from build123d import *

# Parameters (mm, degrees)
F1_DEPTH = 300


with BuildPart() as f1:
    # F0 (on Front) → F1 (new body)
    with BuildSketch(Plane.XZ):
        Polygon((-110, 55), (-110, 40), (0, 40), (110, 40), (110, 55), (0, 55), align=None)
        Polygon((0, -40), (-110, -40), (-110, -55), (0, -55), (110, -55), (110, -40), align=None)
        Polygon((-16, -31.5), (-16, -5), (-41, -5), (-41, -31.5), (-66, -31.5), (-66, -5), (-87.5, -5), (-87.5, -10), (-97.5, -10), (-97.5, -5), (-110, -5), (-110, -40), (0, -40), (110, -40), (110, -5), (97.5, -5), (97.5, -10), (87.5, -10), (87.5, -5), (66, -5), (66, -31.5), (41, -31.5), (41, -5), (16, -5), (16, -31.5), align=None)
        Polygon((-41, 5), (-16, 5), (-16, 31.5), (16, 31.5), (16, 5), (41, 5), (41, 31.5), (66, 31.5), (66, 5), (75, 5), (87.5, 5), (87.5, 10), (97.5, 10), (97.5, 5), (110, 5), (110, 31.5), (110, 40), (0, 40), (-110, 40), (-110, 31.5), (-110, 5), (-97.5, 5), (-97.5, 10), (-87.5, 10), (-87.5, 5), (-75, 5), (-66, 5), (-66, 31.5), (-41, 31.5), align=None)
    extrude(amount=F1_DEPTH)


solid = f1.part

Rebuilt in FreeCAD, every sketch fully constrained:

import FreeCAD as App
import Part
import Sketcher

V = App.Vector

doc = App.newDocument("Part")
params = doc.addObject("Spreadsheet::Sheet", "Params")
for row, (alias, value) in enumerate([
    ("sketch1_width", "10 mm"),
    ("sketch1_width2", "25 mm"),
    ("sketch1_width3", "32 mm"),
    ("sketch1_width4", "220 mm"),
    ("sketch1_height", "50 mm"),
    ("pad1_length", "300 mm"),
], start=1):
    params.set(f"A{row}", alias)
    params.set(f"B{row}", "=" + value)
    params.setAlias(f"B{row}", alias)

body = doc.addObject("PartDesign::Body", "Body")
body.AllowCompound = True

# Sketch on XZ plane
sketch1 = body.newObject("Sketcher::SketchObject", "Sketch")
sketch1.AttachmentSupport = (doc.getObject("XZ_Plane"), [""])
sketch1.MapMode = "FlatFace"
sketch1.addGeometry(Part.LineSegment(V(-110, 55, 0), V(-110, 5, 0)), False)
sketch1.addGeometry(Part.LineSegment(V(-110, 5, 0), V(-98, 5, 0)), False)
sketch1.addGeometry(Part.LineSegment(V(-98, 5, 0), V(-98, 10, 0)), False)
sketch1.addGeometry(Part.LineSegment(V(-98, 10, 0), V(-88, 10, 0)), False)
sketch1.addGeometry(Part.LineSegment(V(-88, 10, 0), V(-88, 5, 0)), False)
sketch1.addGeometry(Part.LineSegment(V(-88, 5, 0), V(-66, 5, 0)), False)
sketch1.addGeometry(Part.LineSegment(V(-66, 5, 0), V(-66, 32, 0)), False)
sketch1.addGeometry(Part.LineSegment(V(-66, 32, 0), V(-41, 32, 0)), False)
sketch1.addGeometry(Part.LineSegment(V(-41, 32, 0), V(-41, 5, 0)), False)
sketch1.addGeometry(Part.LineSegment(V(-41, 5, 0), V(-16, 5, 0)), False)
sketch1.addGeometry(Part.LineSegment(V(-16, 5, 0), V(-16, 32, 0)), False)
sketch1.addGeometry(Part.LineSegment(V(-16, 32, 0), V(16, 32, 0)), False)
sketch1.addGeometry(Part.LineSegment(V(16, 32, 0), V(16, 5, 0)), False)
sketch1.addGeometry(Part.LineSegment(V(16, 5, 0), V(41, 5, 0)), False)
sketch1.addGeometry(Part.LineSegment(V(41, 5, 0), V(41, 32, 0)), False)
sketch1.addGeometry(Part.LineSegment(V(41, 32, 0), V(66, 32, 0)), False)
sketch1.addGeometry(Part.LineSegment(V(66, 32, 0), V(66, 5, 0)), False)
sketch1.addGeometry(Part.LineSegment(V(66, 5, 0), V(88, 5, 0)), False)
sketch1.addGeometry(Part.LineSegment(V(88, 5, 0), V(88, 10, 0)), False)
sketch1.addGeometry(Part.LineSegment(V(88, 10, 0), V(98, 10, 0)), False)
sketch1.addGeometry(Part.LineSegment(V(98, 10, 0), V(98, 5, 0)), False)
sketch1.addGeometry(Part.LineSegment(V(98, 5, 0), V(110, 5, 0)), False)
sketch1.addGeometry(Part.LineSegment(V(110, 5, 0), V(110, 55, 0)), False)
sketch1.addGeometry(Part.LineSegment(V(110, 55, 0), V(-110, 55, 0)), False)
sketch1.addGeometry(Part.LineSegment(V(-110, -55, 0), V(110, -55, 0)), False)
sketch1.addGeometry(Part.LineSegment(V(110, -55, 0), V(110, -5, 0)), False)
sketch1.addGeometry(Part.LineSegment(V(110, -5, 0), V(98, -5, 0)), False)
sketch1.addGeometry(Part.LineSegment(V(98, -5, 0), V(98, -10, 0)), False)
sketch1.addGeometry(Part.LineSegment(V(98, -10, 0), V(88, -10, 0)), False)
sketch1.addGeometry(Part.LineSegment(V(88, -10, 0), V(88, -5, 0)), False)
sketch1.addGeometry(Part.LineSegment(V(88, -5, 0), V(66, -5, 0)), False)
sketch1.addGeometry(Part.LineSegment(V(66, -5, 0), V(66, -32, 0)), False)
sketch1.addGeometry(Part.LineSegment(V(66, -32, 0), V(41, -32, 0)), False)
sketch1.addGeometry(Part.LineSegment(V(41, -32, 0), V(41, -5, 0)), False)
sketch1.addGeometry(Part.LineSegment(V(41, -5, 0), V(16, -5, 0)), False)
sketch1.addGeometry(Part.LineSegment(V(16, -5, 0), V(16, -32, 0)), False)
sketch1.addGeometry(Part.LineSegment(V(16, -32, 0), V(-16, -32, 0)), False)
sketch1.addGeometry(Part.LineSegment(V(-16, -32, 0), V(-16, -5, 0)), False)
sketch1.addGeometry(Part.LineSegment(V(-16, -5, 0), V(-41, -5, 0)), False)
sketch1.addGeometry(Part.LineSegment(V(-41, -5, 0), V(-41, -32, 0)), False)
sketch1.addGeometry(Part.LineSegment(V(-41, -32, 0), V(-66, -32, 0)), False)
sketch1.addGeometry(Part.LineSegment(V(-66, -32, 0), V(-66, -5, 0)), False)
sketch1.addGeometry(Part.LineSegment(V(-66, -5, 0), V(-88, -5, 0)), False)
sketch1.addGeometry(Part.LineSegment(V(-88, -5, 0), V(-88, -10, 0)), False)
sketch1.addGeometry(Part.LineSegment(V(-88, -10, 0), V(-98, -10, 0)), False)
sketch1.addGeometry(Part.LineSegment(V(-98, -10, 0), V(-98, -5, 0)), False)
sketch1.addGeometry(Part.LineSegment(V(-98, -5, 0), V(-110, -5, 0)), False)
sketch1.addGeometry(Part.LineSegment(V(-110, -5, 0), V(-110, -55, 0)), False)
sketch1.addConstraint(Sketcher.Constraint("Coincident", 0, 2, 1, 1))
sketch1.addConstraint(Sketcher.Constraint("Coincident", 1, 2, 2, 1))
sketch1.addConstraint(Sketcher.Constraint("Coincident", 2, 2, 3, 1))
sketch1.addConstraint(Sketcher.Constraint("Coincident", 3, 2, 4, 1))
sketch1.addConstraint(Sketcher.Constraint("Coincident", 4, 2, 5, 1))
sketch1.addConstraint(Sketcher.Constraint("Coincident", 5, 2, 6, 1))
sketch1.addConstraint(Sketcher.Constraint("Coincident", 6, 2, 7, 1))
sketch1.addConstraint(Sketcher.Constraint("Coincident", 7, 2, 8, 1))
sketch1.addConstraint(Sketcher.Constraint("Coincident", 8, 2, 9, 1))
sketch1.addConstraint(Sketcher.Constraint("Coincident", 9, 2, 10, 1))
sketch1.addConstraint(Sketcher.Constraint("Coincident", 10, 2, 11, 1))
sketch1.addConstraint(Sketcher.Constraint("Coincident", 11, 2, 12, 1))
sketch1.addConstraint(Sketcher.Constraint("Coincident", 12, 2, 13, 1))
sketch1.addConstraint(Sketcher.Constraint("Coincident", 13, 2, 14, 1))
sketch1.addConstraint(Sketcher.Constraint("Coincident", 14, 2, 15, 1))
sketch1.addConstraint(Sketcher.Constraint("Coincident", 15, 2, 16, 1))
sketch1.addConstraint(Sketcher.Constraint("Coincident", 16, 2, 17, 1))
sketch1.addConstraint(Sketcher.Constraint("Coincident", 17, 2, 18, 1))
sketch1.addConstraint(Sketcher.Constraint("Coincident", 18, 2, 19, 1))
sketch1.addConstraint(Sketcher.Constraint("Coincident", 19, 2, 20, 1))
sketch1.addConstraint(Sketcher.Constraint("Coincident", 20, 2, 21, 1))
sketch1.addConstraint(Sketcher.Constraint("Coincident", 21, 2, 22, 1))
sketch1.addConstraint(Sketcher.Constraint("Coincident", 22, 2, 23, 1))
sketch1.addConstraint(Sketcher.Constraint("Coincident", 23, 2, 0, 1))
sketch1.addConstraint(Sketcher.Constraint("Coincident", 24, 2, 25, 1))
sketch1.addConstraint(Sketcher.Constraint("Coincident", 25, 2, 26, 1))
sketch1.addConstraint(Sketcher.Constraint("Coincident", 26, 2, 27, 1))
sketch1.addConstraint(Sketcher.Constraint("Coincident", 27, 2, 28, 1))
sketch1.addConstraint(Sketcher.Constraint("Coincident", 28, 2, 29, 1))
sketch1.addConstraint(Sketcher.Constraint("Coincident", 29, 2, 30, 1))
sketch1.addConstraint(Sketcher.Constraint("Coincident", 30, 2, 31, 1))
sketch1.addConstraint(Sketcher.Constraint("Coincident", 31, 2, 32, 1))
sketch1.addConstraint(Sketcher.Constraint("Coincident", 32, 2, 33, 1))
sketch1.addConstraint(Sketcher.Constraint("Coincident", 33, 2, 34, 1))
sketch1.addConstraint(Sketcher.Constraint("Coincident", 34, 2, 35, 1))
sketch1.addConstraint(Sketcher.Constraint("Coincident", 35, 2, 36, 1))
sketch1.addConstraint(Sketcher.Constraint("Coincident", 36, 2, 37, 1))
sketch1.addConstraint(Sketcher.Constraint("Coincident", 37, 2, 38, 1))
sketch1.addConstraint(Sketcher.Constraint("Coincident", 38, 2, 39, 1))
sketch1.addConstraint(Sketcher.Constraint("Coincident", 39, 2, 40, 1))
sketch1.addConstraint(Sketcher.Constraint("Coincident", 40, 2, 41, 1))
sketch1.addConstraint(Sketcher.Constraint("Coincident", 41, 2, 42, 1))
sketch1.addConstraint(Sketcher.Constraint("Coincident", 42, 2, 43, 1))
sketch1.addConstraint(Sketcher.Constraint("Coincident", 43, 2, 44, 1))
sketch1.addConstraint(Sketcher.Constraint("Coincident", 44, 2, 45, 1))
sketch1.addConstraint(Sketcher.Constraint("Coincident", 45, 2, 46, 1))
sketch1.addConstraint(Sketcher.Constraint("Coincident", 46, 2, 47, 1))
sketch1.addConstraint(Sketcher.Constraint("Coincident", 47, 2, 24, 1))
sketch1.addConstraint(Sketcher.Constraint("Vertical", 0))
sketch1.addConstraint(Sketcher.Constraint("Horizontal", 1))
sketch1.addConstraint(Sketcher.Constraint("Vertical", 2))
sketch1.addConstraint(Sketcher.Constraint("Horizontal", 3))
sketch1.addConstraint(Sketcher.Constraint("Vertical", 4))
sketch1.addConstraint(Sketcher.Constraint("Horizontal", 5))
sketch1.addConstraint(Sketcher.Constraint("Vertical", 6))
sketch1.addConstraint(Sketcher.Constraint("Horizontal", 7))
sketch1.addConstraint(Sketcher.Constraint("Vertical", 8))
sketch1.addConstraint(Sketcher.Constraint("Horizontal", 9))
sketch1.addConstraint(Sketcher.Constraint("Vertical", 10))
sketch1.addConstraint(Sketcher.Constraint("Horizontal", 11))
sketch1.addConstraint(Sketcher.Constraint("Vertical", 12))
sketch1.addConstraint(Sketcher.Constraint("Horizontal", 13))
sketch1.addConstraint(Sketcher.Constraint("Vertical", 14))
sketch1.addConstraint(Sketcher.Constraint("Horizontal", 15))
sketch1.addConstraint(Sketcher.Constraint("Vertical", 16))
sketch1.addConstraint(Sketcher.Constraint("Horizontal", 17))
sketch1.addConstraint(Sketcher.Constraint("Vertical", 18))
sketch1.addConstraint(Sketcher.Constraint("Horizontal", 19))
sketch1.addConstraint(Sketcher.Constraint("Vertical", 20))
sketch1.addConstraint(Sketcher.Constraint("Horizontal", 21))
sketch1.addConstraint(Sketcher.Constraint("Vertical", 22))
sketch1.addConstraint(Sketcher.Constraint("Horizontal", 23))
sketch1.addConstraint(Sketcher.Constraint("Horizontal", 24))
sketch1.addConstraint(Sketcher.Constraint("Vertical", 25))
sketch1.addConstraint(Sketcher.Constraint("Horizontal", 26))
sketch1.addConstraint(Sketcher.Constraint("Vertical", 27))
sketch1.addConstraint(Sketcher.Constraint("Horizontal", 28))
sketch1.addConstraint(Sketcher.Constraint("Vertical", 29))
sketch1.addConstraint(Sketcher.Constraint("Horizontal", 30))
sketch1.addConstraint(Sketcher.Constraint("Vertical", 31))
sketch1.addConstraint(Sketcher.Constraint("Horizontal", 32))
sketch1.addConstraint(Sketcher.Constraint("Vertical", 33))
sketch1.addConstraint(Sketcher.Constraint("Horizontal", 34))
sketch1.addConstraint(Sketcher.Constraint("Vertical", 35))
sketch1.addConstraint(Sketcher.Constraint("Horizontal", 36))
sketch1.addConstraint(Sketcher.Constraint("Vertical", 37))
sketch1.addConstraint(Sketcher.Constraint("Horizontal", 38))
sketch1.addConstraint(Sketcher.Constraint("Vertical", 39))
sketch1.addConstraint(Sketcher.Constraint("Horizontal", 40))
sketch1.addConstraint(Sketcher.Constraint("Vertical", 41))
sketch1.addConstraint(Sketcher.Constraint("Horizontal", 42))
sketch1.addConstraint(Sketcher.Constraint("Vertical", 43))
sketch1.addConstraint(Sketcher.Constraint("Horizontal", 44))
sketch1.addConstraint(Sketcher.Constraint("Vertical", 45))
sketch1.addConstraint(Sketcher.Constraint("Horizontal", 46))
sketch1.addConstraint(Sketcher.Constraint("Vertical", 47))
sketch1.addConstraint(Sketcher.Constraint("Symmetric", 23, 2, 24, 2, -1, 1))
sketch1.addConstraint(Sketcher.Constraint("Symmetric", 1, 2, 26, 2, -1, 1))
sketch1.addConstraint(Sketcher.Constraint("Symmetric", 3, 2, 28, 2, -1, 1))
sketch1.addConstraint(Sketcher.Constraint("Symmetric", 5, 2, 30, 2, -1, 1))
sketch1.addConstraint(Sketcher.Constraint("Symmetric", 7, 2, 32, 2, -1, 1))
sketch1.addConstraint(Sketcher.Constraint("Symmetric", 9, 2, 34, 2, -1, 1))
sketch1.addConstraint(Sketcher.Constraint("Symmetric", 11, 2, 36, 2, -1, 1))
sketch1.addConstraint(Sketcher.Constraint("Symmetric", 13, 2, 38, 2, -1, 1))
sketch1.addConstraint(Sketcher.Constraint("Symmetric", 15, 2, 40, 2, -1, 1))
sketch1.addConstraint(Sketcher.Constraint("Symmetric", 17, 2, 42, 2, -1, 1))
sketch1.addConstraint(Sketcher.Constraint("Symmetric", 19, 2, 44, 2, -1, 1))
sketch1.addConstraint(Sketcher.Constraint("Symmetric", 21, 2, 46, 2, -1, 1))
sketch1.addConstraint(Sketcher.Constraint("Symmetric", 9, 2, 12, 2, -2))
sketch1.addConstraint(Sketcher.Constraint("Symmetric", 7, 2, 14, 2, -2))
sketch1.addConstraint(Sketcher.Constraint("Symmetric", 5, 2, 16, 2, -2))
sketch1.addConstraint(Sketcher.Constraint("Symmetric", 3, 2, 18, 2, -2))
sketch1.addConstraint(Sketcher.Constraint("Symmetric", 1, 2, 20, 2, -2))
sketch1.addConstraint(Sketcher.Constraint("Horizontal", 1, 2, 4, 2))
sketch1.addConstraint(Sketcher.Constraint("Horizontal", 5, 2, 8, 2))
sketch1.addConstraint(Sketcher.Constraint("Horizontal", 7, 2, 10, 2))
sketch1.addConstraint(Sketcher.Constraint("Vertical", 22, 2, 24, 2))
sketch1.addConstraint(Sketcher.Constraint("Equal", 7, 9))
sketch1.addConstraint(Sketcher.Constraint("DistanceX", 3, 1, 3, 2, 10.0))
sketch1.addConstraint(Sketcher.Constraint("DistanceX", 7, 1, 7, 2, 25.0))
sketch1.addConstraint(Sketcher.Constraint("DistanceX", 11, 1, 11, 2, 32.0))
sketch1.addConstraint(Sketcher.Constraint("DistanceX", 23, 2, 23, 1, 220.0))
sketch1.addConstraint(Sketcher.Constraint("DistanceY", 0, 2, 0, 1, 50.0))
sketch1.addConstraint(Sketcher.Constraint("DistanceY", 2, 1, 2, 2, 5.0))
sketch1.addConstraint(Sketcher.Constraint("DistanceX", 1, 1, 1, 2, 12.5))
sketch1.addConstraint(Sketcher.Constraint("DistanceY", 6, 1, 6, 2, 26.5))
sketch1.addConstraint(Sketcher.Constraint("DistanceY", -1, 1, 0, 2, 5.0))
sketch1.setExpression("Constraints[118]", "Params.sketch1_width")
sketch1.setExpression("Constraints[119]", "Params.sketch1_width2")
sketch1.setExpression("Constraints[120]", "Params.sketch1_width3")
sketch1.setExpression("Constraints[121]", "Params.sketch1_width4")
sketch1.setExpression("Constraints[122]", "Params.sketch1_height")
pad1 = body.newObject("PartDesign::Pad", "Pad")
pad1.Profile = sketch1
pad1.setExpression("Length", "Params.pad1_length")

doc.recompute()
